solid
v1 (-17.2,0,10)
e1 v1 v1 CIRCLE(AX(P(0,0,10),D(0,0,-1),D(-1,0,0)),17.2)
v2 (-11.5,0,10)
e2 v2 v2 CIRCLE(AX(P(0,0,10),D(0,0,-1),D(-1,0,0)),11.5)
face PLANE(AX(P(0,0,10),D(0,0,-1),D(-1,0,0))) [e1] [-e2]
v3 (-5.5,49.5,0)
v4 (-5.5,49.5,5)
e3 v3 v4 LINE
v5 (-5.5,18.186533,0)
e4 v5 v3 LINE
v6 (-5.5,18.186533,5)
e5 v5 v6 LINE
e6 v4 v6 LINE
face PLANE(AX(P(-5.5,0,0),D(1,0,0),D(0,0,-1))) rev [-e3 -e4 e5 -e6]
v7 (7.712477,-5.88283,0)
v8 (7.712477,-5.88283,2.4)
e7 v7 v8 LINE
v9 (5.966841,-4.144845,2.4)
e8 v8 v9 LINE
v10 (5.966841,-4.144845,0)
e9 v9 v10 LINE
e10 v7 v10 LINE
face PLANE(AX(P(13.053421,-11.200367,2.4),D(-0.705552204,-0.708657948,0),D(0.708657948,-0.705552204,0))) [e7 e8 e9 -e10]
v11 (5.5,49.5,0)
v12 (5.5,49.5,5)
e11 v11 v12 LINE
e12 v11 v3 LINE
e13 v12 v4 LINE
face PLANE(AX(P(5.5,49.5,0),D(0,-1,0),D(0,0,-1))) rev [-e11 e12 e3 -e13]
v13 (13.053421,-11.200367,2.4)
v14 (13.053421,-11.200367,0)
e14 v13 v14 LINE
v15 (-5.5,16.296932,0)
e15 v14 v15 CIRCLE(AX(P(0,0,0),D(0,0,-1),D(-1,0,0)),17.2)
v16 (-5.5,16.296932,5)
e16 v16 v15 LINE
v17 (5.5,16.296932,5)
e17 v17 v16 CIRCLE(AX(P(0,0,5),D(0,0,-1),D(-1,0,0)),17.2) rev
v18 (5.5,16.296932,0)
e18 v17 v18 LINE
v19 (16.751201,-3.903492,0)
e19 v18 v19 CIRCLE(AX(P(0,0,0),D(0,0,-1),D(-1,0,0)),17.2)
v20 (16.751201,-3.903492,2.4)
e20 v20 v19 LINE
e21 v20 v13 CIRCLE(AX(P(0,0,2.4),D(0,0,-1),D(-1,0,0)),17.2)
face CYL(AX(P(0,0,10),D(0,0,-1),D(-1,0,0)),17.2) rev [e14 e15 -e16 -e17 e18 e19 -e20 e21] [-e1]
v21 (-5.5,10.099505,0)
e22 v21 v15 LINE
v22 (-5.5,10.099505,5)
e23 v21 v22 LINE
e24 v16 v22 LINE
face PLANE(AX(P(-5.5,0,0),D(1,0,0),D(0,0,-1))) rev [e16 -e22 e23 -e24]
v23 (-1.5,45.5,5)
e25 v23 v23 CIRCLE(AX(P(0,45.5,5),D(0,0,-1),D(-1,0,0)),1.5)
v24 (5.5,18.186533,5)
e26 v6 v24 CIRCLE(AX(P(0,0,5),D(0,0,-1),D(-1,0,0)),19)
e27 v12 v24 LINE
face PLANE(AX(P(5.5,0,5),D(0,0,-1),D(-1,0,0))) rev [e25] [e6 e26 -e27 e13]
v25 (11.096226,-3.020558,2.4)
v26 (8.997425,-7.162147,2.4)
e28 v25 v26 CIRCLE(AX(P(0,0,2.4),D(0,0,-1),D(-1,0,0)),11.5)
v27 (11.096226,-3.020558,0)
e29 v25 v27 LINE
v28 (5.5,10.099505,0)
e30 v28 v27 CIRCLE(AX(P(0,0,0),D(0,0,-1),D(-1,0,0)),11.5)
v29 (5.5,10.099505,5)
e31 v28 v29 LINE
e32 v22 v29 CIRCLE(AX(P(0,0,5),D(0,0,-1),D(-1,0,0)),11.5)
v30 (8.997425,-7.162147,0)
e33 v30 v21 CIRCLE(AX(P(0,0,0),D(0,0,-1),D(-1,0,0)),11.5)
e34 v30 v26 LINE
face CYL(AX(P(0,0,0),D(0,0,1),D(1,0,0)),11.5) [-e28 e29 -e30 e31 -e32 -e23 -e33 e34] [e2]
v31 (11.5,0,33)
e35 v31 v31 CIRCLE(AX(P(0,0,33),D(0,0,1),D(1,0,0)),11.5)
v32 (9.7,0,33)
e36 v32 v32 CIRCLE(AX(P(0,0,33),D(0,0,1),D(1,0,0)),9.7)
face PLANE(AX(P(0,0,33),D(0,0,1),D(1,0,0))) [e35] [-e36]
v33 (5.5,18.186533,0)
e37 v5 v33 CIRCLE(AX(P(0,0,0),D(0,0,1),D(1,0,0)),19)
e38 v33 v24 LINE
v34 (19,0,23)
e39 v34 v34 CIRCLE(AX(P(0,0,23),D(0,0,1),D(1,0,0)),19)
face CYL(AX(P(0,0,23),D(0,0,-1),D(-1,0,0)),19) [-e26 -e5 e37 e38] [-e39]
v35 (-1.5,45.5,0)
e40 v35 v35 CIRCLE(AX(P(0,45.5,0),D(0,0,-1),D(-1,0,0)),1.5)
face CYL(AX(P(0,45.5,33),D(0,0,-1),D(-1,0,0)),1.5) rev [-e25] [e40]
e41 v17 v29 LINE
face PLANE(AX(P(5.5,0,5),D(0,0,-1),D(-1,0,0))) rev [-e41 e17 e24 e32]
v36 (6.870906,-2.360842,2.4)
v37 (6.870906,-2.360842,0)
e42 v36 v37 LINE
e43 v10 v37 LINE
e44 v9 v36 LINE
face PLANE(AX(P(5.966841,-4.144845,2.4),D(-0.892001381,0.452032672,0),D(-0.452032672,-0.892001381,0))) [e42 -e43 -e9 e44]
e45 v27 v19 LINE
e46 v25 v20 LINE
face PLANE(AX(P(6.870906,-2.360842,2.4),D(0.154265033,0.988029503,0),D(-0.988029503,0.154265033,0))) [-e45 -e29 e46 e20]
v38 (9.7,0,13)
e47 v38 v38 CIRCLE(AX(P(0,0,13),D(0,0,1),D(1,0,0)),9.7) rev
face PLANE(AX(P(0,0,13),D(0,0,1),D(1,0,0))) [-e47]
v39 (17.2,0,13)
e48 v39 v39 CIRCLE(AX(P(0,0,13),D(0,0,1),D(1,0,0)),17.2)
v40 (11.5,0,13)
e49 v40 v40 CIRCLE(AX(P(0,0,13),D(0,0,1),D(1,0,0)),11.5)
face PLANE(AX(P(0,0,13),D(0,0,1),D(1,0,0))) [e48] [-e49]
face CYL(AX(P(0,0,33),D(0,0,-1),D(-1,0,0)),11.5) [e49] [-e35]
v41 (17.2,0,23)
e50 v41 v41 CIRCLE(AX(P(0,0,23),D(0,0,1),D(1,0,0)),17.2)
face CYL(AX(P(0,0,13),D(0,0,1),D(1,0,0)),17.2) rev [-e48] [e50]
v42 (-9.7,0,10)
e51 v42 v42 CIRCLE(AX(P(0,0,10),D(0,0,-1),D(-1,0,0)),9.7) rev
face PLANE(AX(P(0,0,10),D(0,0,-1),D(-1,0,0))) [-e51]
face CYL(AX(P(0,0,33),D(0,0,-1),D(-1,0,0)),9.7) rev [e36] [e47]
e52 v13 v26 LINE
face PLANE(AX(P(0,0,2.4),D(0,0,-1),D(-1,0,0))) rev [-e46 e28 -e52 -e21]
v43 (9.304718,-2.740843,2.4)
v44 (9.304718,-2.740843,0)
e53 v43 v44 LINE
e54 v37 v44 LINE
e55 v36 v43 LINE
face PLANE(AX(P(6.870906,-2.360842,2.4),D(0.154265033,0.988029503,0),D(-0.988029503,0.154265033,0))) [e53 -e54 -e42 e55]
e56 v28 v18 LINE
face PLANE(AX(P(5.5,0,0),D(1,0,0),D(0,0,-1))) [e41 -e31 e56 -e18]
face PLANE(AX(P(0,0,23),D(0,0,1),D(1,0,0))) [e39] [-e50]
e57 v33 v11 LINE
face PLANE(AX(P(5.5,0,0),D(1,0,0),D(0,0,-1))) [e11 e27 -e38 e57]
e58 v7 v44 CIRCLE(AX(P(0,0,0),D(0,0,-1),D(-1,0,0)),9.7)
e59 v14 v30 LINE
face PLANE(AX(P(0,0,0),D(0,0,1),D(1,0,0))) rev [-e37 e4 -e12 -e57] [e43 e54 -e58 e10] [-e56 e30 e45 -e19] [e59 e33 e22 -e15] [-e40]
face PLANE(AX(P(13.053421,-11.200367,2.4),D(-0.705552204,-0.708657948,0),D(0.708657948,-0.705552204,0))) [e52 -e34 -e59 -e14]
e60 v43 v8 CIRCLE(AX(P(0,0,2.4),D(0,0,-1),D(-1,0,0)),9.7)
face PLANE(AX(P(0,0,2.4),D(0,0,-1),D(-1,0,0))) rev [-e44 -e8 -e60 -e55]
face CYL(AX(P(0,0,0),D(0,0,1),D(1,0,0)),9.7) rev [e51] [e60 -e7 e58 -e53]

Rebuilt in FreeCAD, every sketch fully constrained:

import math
import FreeCAD as App
import Part
import Sketcher
Q = App.Units.Quantity


def add_polygon(sketch, points):
    """Adds a closed chain of lines whose ends are joined by coincident constraints."""
    first, n = sketch.GeometryCount, len(points)
    for a, b in zip(points, points[1:] + points[:1]):
        sketch.addGeometry(Part.LineSegment(App.Vector(*a, 0), App.Vector(*b, 0)), False)
    for i in range(n):
        sketch.addConstraint(Sketcher.Constraint("Coincident", first + i, 2, first + (i + 1) % n, 1))

doc = App.newDocument("Part")
body = doc.addObject("PartDesign::Body", "Body")

sketch1 = doc.addObject("Sketcher::SketchObject", "Sketch")
body.addObject(sketch1)
sketch1.AttachmentSupport = (doc.XY_Plane, [""])
sketch1.MapMode = "FlatFace"
sketch1.addGeometry(Part.Circle(App.Vector(0, 0, 0), App.Vector(0, 0, 1), 19), False)
sketch1.addConstraint([
    Sketcher.Constraint("Coincident", 0, 3, -1, 1),
    Sketcher.Constraint("Diameter", 0, Q("38 mm")),
])
pad1 = doc.addObject("PartDesign::Pad", "Pad")
body.addObject(pad1)
pad1.Profile = sketch1
pad1.Length = 23

sketch2 = doc.addObject("Sketcher::SketchObject", "Sketch001")
body.addObject(sketch2)
sketch2.AttachmentSupport = (doc.XY_Plane, [""])
sketch2.MapMode = "FlatFace"
sketch2.AttachmentOffset = App.Placement(App.Vector(0, 0, 23), App.Rotation())
sketch2.addGeometry(Part.Circle(App.Vector(0, 0, 0), App.Vector(0, 0, 1), 17.2), False)
sketch2.addConstraint([
    Sketcher.Constraint("Coincident", 0, 3, -1, 1),
    Sketcher.Constraint("Diameter", 0, Q("34.4 mm")),
])
pocket1 = doc.addObject("PartDesign::Pocket", "Pocket")
body.addObject(pocket1)
pocket1.Profile = sketch2
pocket1.Length = 10

sketch3 = doc.addObject("Sketcher::SketchObject", "Sketch002")
body.addObject(sketch3)
sketch3.AttachmentSupport = (doc.XY_Plane, [""])
sketch3.MapMode = "FlatFace"
sketch3.AttachmentOffset = App.Placement(App.Vector(0, 0, 13), App.Rotation())
sketch3.addGeometry([
    Part.Circle(App.Vector(0, 0, 0), App.Vector(0, 0, 1), 11.5),
    Part.Circle(App.Vector(0, 0, 0), App.Vector(0, 0, 1), 9.7),
], False)
sketch3.addConstraint([
    Sketcher.Constraint("Coincident", 0, 3, -1, 1),
    Sketcher.Constraint("Coincident", 1, 3, -1, 1),
    Sketcher.Constraint("Diameter", 0, Q("23 mm")),
    Sketcher.Constraint("Diameter", 1, Q("19.4 mm")),
])
pad2 = doc.addObject("PartDesign::Pad", "Pad001")
body.addObject(pad2)
pad2.Profile = sketch3
pad2.Length = 20

sketch4 = doc.addObject("Sketcher::SketchObject", "Sketch003")
body.addObject(sketch4)
sketch4.AttachmentSupport = (doc.XY_Plane, [""])
sketch4.MapMode = "FlatFace"
sketch4.AttachmentOffset = App.Placement(App.Vector(0, 0, 10), App.Rotation())
sketch4.addGeometry(Part.Circle(App.Vector(0, 0, 0), App.Vector(0, 0, 1), 17.2), False)
sketch4.addConstraint([
    Sketcher.Constraint("Coincident", 0, 3, -1, 1),
    Sketcher.Constraint("Diameter", 0, Q("34.4 mm")),
])
pocket2 = doc.addObject("PartDesign::Pocket", "Pocket001")
body.addObject(pocket2)
pocket2.Profile = sketch4
pocket2.Length = 10

sketch5 = doc.addObject("Sketcher::SketchObject", "Sketch004")
body.addObject(sketch5)
sketch5.AttachmentSupport = (doc.XY_Plane, [""])
sketch5.MapMode = "FlatFace"
sketch5.addGeometry([
    Part.Circle(App.Vector(0, 0, 0), App.Vector(0, 0, 1), 11.5),
    Part.Circle(App.Vector(0, 0, 0), App.Vector(0, 0, 1), 9.7),
], False)
sketch5.addConstraint([
    Sketcher.Constraint("Coincident", 0, 3, -1, 1),
    Sketcher.Constraint("Coincident", 1, 3, -1, 1),
    Sketcher.Constraint("Diameter", 0, Q("23 mm")),
    Sketcher.Constraint("Diameter", 1, Q("19.4 mm")),
])
pad3 = doc.addObject("PartDesign::Pad", "Pad002")
body.addObject(pad3)
pad3.Profile = sketch5
pad3.Length = 10

sketch6 = doc.addObject("Sketcher::SketchObject", "Sketch005")
body.addObject(sketch6)
sketch6.AttachmentSupport = (doc.YZ_Plane, [""])
sketch6.MapMode = "FlatFace"
add_polygon(sketch6, [(10.008599, 5), (10.008599, 0), (49.5, 0), (49.5, 5)])
sketch6.addConstraint([
    Sketcher.Constraint("Vertical", 0),
    Sketcher.Constraint("Horizontal", 1),
    Sketcher.Constraint("Vertical", 2),
    Sketcher.Constraint("Horizontal", 3),
    Sketcher.Constraint("PointOnObject", 0, 2, -1),
    Sketcher.Constraint("DistanceY", 0, 2, 0, 1, Q("5 mm")),
    Sketcher.Constraint("DistanceX", -1, 1, 1, 2, Q("49.5 mm")),
    Sketcher.Constraint("DistanceX", 1, 1, 1, 2, Q("39.491401 mm")),
])
pad4 = doc.addObject("PartDesign::Pad", "Pad003")
body.addObject(pad4)
pad4.Profile = sketch6
pad4.Length = 11
pad4.Midplane = True

sketch7 = doc.addObject("Sketcher::SketchObject", "Sketch006")
body.addObject(sketch7)
sketch7.AttachmentSupport = (doc.XY_Plane, [""])
sketch7.MapMode = "FlatFace"
sketch7.AttachmentOffset = App.Placement(App.Vector(0, 0, 2.4), App.Rotation())
sketch7.addGeometry([
    Part.LineSegment(App.Vector(13.053421, -11.200367, 0), App.Vector(5.966841, -4.144845, 0)),
    Part.LineSegment(App.Vector(5.966841, -4.144845, 0), App.Vector(6.870906, -2.360842, 0)),
    Part.LineSegment(App.Vector(6.870906, -2.360842, 0), App.Vector(16.751201, -3.903492, 0)),
    Part.ArcOfCircle(Part.Circle(App.Vector(0, 0, 0), App.Vector(0, 0, 1), 17.2), math.radians(-40.630938), math.radians(-13.117408)),
], False)
sketch7.addConstraint([
    Sketcher.Constraint("Coincident", 0, 2, 1, 1),
    Sketcher.Constraint("Coincident", 1, 2, 2, 1),
    Sketcher.Constraint("Coincident", 2, 2, 3, 2),
    Sketcher.Constraint("Coincident", 3, 1, 0, 1),
    Sketcher.Constraint("Coincident", 3, 3, -1, 1),
    Sketcher.Constraint("Equal", 0, 2),
    Sketcher.Constraint("Radius", 3, Q("17.2 mm")),
    Sketcher.Constraint("Distance", 0, Q("10 mm")),
    Sketcher.Constraint("Distance", 1, Q("2 mm")),
    Sketcher.Constraint("DistanceX", -1, 1, 2, 2, Q("16.751201 mm")),
    Sketcher.Constraint("DistanceX", -1, 1, 0, 2, Q("5.966841 mm")),
    Sketcher.Constraint("DistanceY", 1, 2, -1, 1, Q("2.360842 mm")),
])
pad5 = doc.addObject("PartDesign::Pad", "Pad004")
body.addObject(pad5)
pad5.Profile = sketch7
pad5.Length = 2.4
pad5.Reversed = True

sketch8 = doc.addObject("Sketcher::SketchObject", "Sketch007")
body.addObject(sketch8)
sketch8.AttachmentSupport = (doc.XY_Plane, [""])
sketch8.MapMode = "FlatFace"
sketch8.addGeometry(Part.Circle(App.Vector(0, 45.5, 0), App.Vector(0, 0, 1), 1.5), False)
sketch8.addConstraint([
    Sketcher.Constraint("PointOnObject", 0, 3, -2),
    Sketcher.Constraint("Diameter", 0, Q("3 mm")),
    Sketcher.Constraint("DistanceY", -1, 1, 0, 3, Q("45.5 mm")),
])
pocket3 = doc.addObject("PartDesign::Pocket", "Pocket002")
body.addObject(pocket3)
pocket3.Profile = sketch8
pocket3.Type = "ThroughAll"
pocket3.Reversed = True

doc.recompute()
